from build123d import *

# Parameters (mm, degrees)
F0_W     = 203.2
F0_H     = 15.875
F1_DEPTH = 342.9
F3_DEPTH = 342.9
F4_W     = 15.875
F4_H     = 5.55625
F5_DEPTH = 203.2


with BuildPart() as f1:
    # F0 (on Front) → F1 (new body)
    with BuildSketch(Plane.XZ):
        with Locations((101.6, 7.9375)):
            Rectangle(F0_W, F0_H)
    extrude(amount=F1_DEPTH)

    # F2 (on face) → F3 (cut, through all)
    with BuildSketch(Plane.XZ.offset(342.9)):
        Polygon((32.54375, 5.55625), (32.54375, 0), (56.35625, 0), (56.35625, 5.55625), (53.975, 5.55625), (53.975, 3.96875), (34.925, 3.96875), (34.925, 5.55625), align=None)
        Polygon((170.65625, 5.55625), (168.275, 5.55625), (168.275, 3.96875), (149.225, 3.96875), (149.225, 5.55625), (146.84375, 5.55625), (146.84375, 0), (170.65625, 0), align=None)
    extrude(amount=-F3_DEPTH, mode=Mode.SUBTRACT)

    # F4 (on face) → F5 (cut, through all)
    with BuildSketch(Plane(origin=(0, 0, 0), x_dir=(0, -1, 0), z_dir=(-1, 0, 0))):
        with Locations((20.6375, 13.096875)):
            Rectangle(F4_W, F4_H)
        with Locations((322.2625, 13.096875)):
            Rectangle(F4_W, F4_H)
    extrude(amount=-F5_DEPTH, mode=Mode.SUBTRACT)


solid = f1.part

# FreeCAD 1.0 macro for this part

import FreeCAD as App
import Part
import Sketcher
Q = App.Units.Quantity

doc = App.newDocument("Part")
body = doc.addObject("PartDesign::Body", "Body")

# Sketch on XZ plane
sketch1 = body.newObject("Sketcher::SketchObject", "Sketch")
sketch1.AttachmentSupport = (doc.getObject("XZ_Plane"), [""])
sketch1.MapMode = "FlatFace"
sketch1.addGeometry([
    Part.LineSegment(App.Vector(0, 16, 0), App.Vector(0, 0, 0)),
    Part.LineSegment(App.Vector(0, 0, 0), App.Vector(203, 0, 0)),
    Part.LineSegment(App.Vector(203, 0, 0), App.Vector(203, 16, 0)),
    Part.LineSegment(App.Vector(203, 16, 0), App.Vector(0, 16, 0)),
], False)
sketch1.addConstraint([
    Sketcher.Constraint("Coincident", 0, 2, 1, 1),
    Sketcher.Constraint("Coincident", 1, 2, 2, 1),
    Sketcher.Constraint("Coincident", 2, 2, 3, 1),
    Sketcher.Constraint("Coincident", 3, 2, 0, 1),
    Sketcher.Constraint("Vertical", 0),
    Sketcher.Constraint("Horizontal", 1),
    Sketcher.Constraint("Vertical", 2),
    Sketcher.Constraint("Horizontal", 3),
    Sketcher.Constraint("Coincident", 0, 2, -1, 1),
    Sketcher.Constraint("DistanceX", 1, 1, 1, 2, Q("8 in")),
    Sketcher.Constraint("DistanceY", 0, 2, 0, 1, Q("0.625 in")),
])
pad1 = body.newObject("PartDesign::Pad", "Pad")
pad1.Profile = sketch1
pad1.Length = Q("13.5 in")

# Sketch on XZ plane
sketch2 = body.newObject("Sketcher::SketchObject", "Sketch001")
sketch2.AttachmentSupport = (doc.getObject("XZ_Plane"), [""])
sketch2.MapMode = "FlatFace"
sketch2.AttachmentOffset = App.Placement(App.Vector(0, 0, 13.5 * 25.4), App.Rotation())
sketch2.addGeometry([
    Part.LineSegment(App.Vector(32.5, 5.6, 0), App.Vector(32.5, 0, 0)),  # 0
    Part.LineSegment(App.Vector(32.5, 0, 0), App.Vector(56.4, 0, 0)),  # 1
    Part.LineSegment(App.Vector(56.4, 0, 0), App.Vector(56.4, 5.6, 0)),  # 2
    Part.LineSegment(App.Vector(56.4, 5.6, 0), App.Vector(54, 5.6, 0)),  # 3
    Part.LineSegment(App.Vector(54, 5.6, 0), App.Vector(54, 4, 0)),  # 4
    Part.LineSegment(App.Vector(54, 4, 0), App.Vector(34.9, 4, 0)),  # 5
    Part.LineSegment(App.Vector(34.9, 4, 0), App.Vector(34.9, 5.6, 0)),  # 6
    Part.LineSegment(App.Vector(34.9, 5.6, 0), App.Vector(32.5, 5.6, 0)),  # 7
    Part.LineSegment(App.Vector(170.7, 5.6, 0), App.Vector(168.3, 5.6, 0)),  # 8
    Part.LineSegment(App.Vector(168.3, 5.6, 0), App.Vector(168.3, 4, 0)),  # 9
    Part.LineSegment(App.Vector(168.3, 4, 0), App.Vector(149.2, 4, 0)),  # 10
    Part.LineSegment(App.Vector(149.2, 4, 0), App.Vector(149.2, 5.6, 0)),  # 11
    Part.LineSegment(App.Vector(149.2, 5.6, 0), App.Vector(146.8, 5.6, 0)),  # 12
    Part.LineSegment(App.Vector(146.8, 5.6, 0), App.Vector(146.8, 0, 0)),  # 13
    Part.LineSegment(App.Vector(146.8, 0, 0), App.Vector(170.7, 0, 0)),  # 14
    Part.LineSegment(App.Vector(170.7, 0, 0), App.Vector(170.7, 5.6, 0)),  # 15
], False)
sketch2.addConstraint([
    Sketcher.Constraint("Coincident", 0, 2, 1, 1),
    Sketcher.Constraint("Coincident", 1, 2, 2, 1),
    Sketcher.Constraint("Coincident", 2, 2, 3, 1),
    Sketcher.Constraint("Coincident", 3, 2, 4, 1),
    Sketcher.Constraint("Coincident", 4, 2, 5, 1),
    Sketcher.Constraint("Coincident", 5, 2, 6, 1),
    Sketcher.Constraint("Coincident", 6, 2, 7, 1),
    Sketcher.Constraint("Coincident", 7, 2, 0, 1),
    Sketcher.Constraint("Coincident", 8, 2, 9, 1),
    Sketcher.Constraint("Coincident", 9, 2, 10, 1),
    Sketcher.Constraint("Coincident", 10, 2, 11, 1),
    Sketcher.Constraint("Coincident", 11, 2, 12, 1),
    Sketcher.Constraint("Coincident", 12, 2, 13, 1),
    Sketcher.Constraint("Coincident", 13, 2, 14, 1),
    Sketcher.Constraint("Coincident", 14, 2, 15, 1),
    Sketcher.Constraint("Coincident", 15, 2, 8, 1),
    Sketcher.Constraint("Vertical", 0),
    Sketcher.Constraint("Horizontal", 1),
    Sketcher.Constraint("Vertical", 2),
    Sketcher.Constraint("Horizontal", 3),
    Sketcher.Constraint("Vertical", 4),
    Sketcher.Constraint("Horizontal", 5),
    Sketcher.Constraint("Vertical", 6),
    Sketcher.Constraint("Horizontal", 7),
    Sketcher.Constraint("Horizontal", 8),
    Sketcher.Constraint("Vertical", 9),
    Sketcher.Constraint("Horizontal", 10),
    Sketcher.Constraint("Vertical", 11),
    Sketcher.Constraint("Horizontal", 12),
    Sketcher.Constraint("Vertical", 13),
    Sketcher.Constraint("Horizontal", 14),
    Sketcher.Constraint("Vertical", 15),
    Sketcher.Constraint("PointOnObject", 0, 2, -1),
    Sketcher.Constraint("PointOnObject", 13, 2, -1),
    Sketcher.Constraint("Horizontal", 3, 2, 6, 2),
    Sketcher.Constraint("Horizontal", 7, 2, 8, 2),
    Sketcher.Constraint("Horizontal", 5, 2, 9, 2),
    Sketcher.Constraint("Horizontal", 8, 2, 11, 2),
    Sketcher.Constraint("Equal", 3, 7),
    Sketcher.Constraint("Equal", 7, 8),
    Sketcher.Constraint("Equal", 5, 10),
    Sketcher.Constraint("Equal", 8, 12),
    Sketcher.Constraint("DistanceX", 5, 2, 5, 1, Q("0.75 in")),
    Sketcher.Constraint("DistanceX", 3, 2, 8, 2, Q("4.5 in")),
    Sketcher.Constraint("DistanceX", 1, 1, 1, 2, Q("0.9375 in")),
    Sketcher.Constraint("DistanceY", 0, 2, 0, 1, Q("0.21875 in")),
    Sketcher.Constraint("DistanceY", 4, 2, 4, 1, Q("0.0625 in")),
    Sketcher.Constraint("DistanceX", -1, 1, 0, 2, Q("1.28125 in")),
])
pocket1 = body.newObject("PartDesign::Pocket", "Pocket")
pocket1.Profile = sketch2
pocket1.Type = "ThroughAll"

# Sketch on YZ plane
sketch3 = body.newObject("Sketcher::SketchObject", "Sketch002")
sketch3.AttachmentSupport = (doc.getObject("YZ_Plane"), [""])
sketch3.MapMode = "FlatFace"
sketch3.addGeometry([
    Part.LineSegment(App.Vector(-13, 16, 0), App.Vector(-13, 10, 0)),  # 0
    Part.LineSegment(App.Vector(-13, 10, 0), App.Vector(-29, 10, 0)),  # 1
    Part.LineSegment(App.Vector(-29, 10, 0), App.Vector(-29, 16, 0)),  # 2
    Part.LineSegment(App.Vector(-29, 16, 0), App.Vector(-13, 16, 0)),  # 3
    Part.LineSegment(App.Vector(-314, 16, 0), App.Vector(-314, 10, 0)),  # 4
    Part.LineSegment(App.Vector(-314, 10, 0), App.Vector(-330, 10, 0)),  # 5
    Part.LineSegment(App.Vector(-330, 10, 0), App.Vector(-330, 16, 0)),  # 6
    Part.LineSegment(App.Vector(-330, 16, 0), App.Vector(-314, 16, 0)),  # 7
], False)
sketch3.addConstraint([
    Sketcher.Constraint("Coincident", 0, 2, 1, 1),
    Sketcher.Constraint("Coincident", 1, 2, 2, 1),
    Sketcher.Constraint("Coincident", 2, 2, 3, 1),
    Sketcher.Constraint("Coincident", 3, 2, 0, 1),
    Sketcher.Constraint("Coincident", 4, 2, 5, 1),
    Sketcher.Constraint("Coincident", 5, 2, 6, 1),
    Sketcher.Constraint("Coincident", 6, 2, 7, 1),
    Sketcher.Constraint("Coincident", 7, 2, 4, 1),
    Sketcher.Constraint("Vertical", 0),
    Sketcher.Constraint("Horizontal", 1),
    Sketcher.Constraint("Vertical", 2),
    Sketcher.Constraint("Horizontal", 3),
    Sketcher.Constraint("Vertical", 4),
    Sketcher.Constraint("Horizontal", 5),
    Sketcher.Constraint("Vertical", 6),
    Sketcher.Constraint("Horizontal", 7),
    Sketcher.Constraint("Horizontal", 1, 2, 4, 2),
    Sketcher.Constraint("Horizontal", 3, 2, 6, 2),
    Sketcher.Constraint("Equal", 3, 5),
    Sketcher.Constraint("DistanceX", 5, 2, -1, 1, Q("13 in")),
    Sketcher.Constraint("DistanceX", 0, 2, -1, 1, Q("0.5 in")),
    Sketcher.Constraint("DistanceX", 1, 2, 1, 1, Q("0.625 in")),
    Sketcher.Constraint("DistanceY", 0, 2, 0, 1, Q("0.21875 in")),
    Sketcher.Constraint("DistanceY", -1, 1, 0, 2, Q("0.40625 in")),
])
pocket2 = body.newObject("PartDesign::Pocket", "Pocket001")
pocket2.Profile = sketch3
pocket2.Type = "ThroughAll"
pocket2.Reversed = True

doc.recompute()
